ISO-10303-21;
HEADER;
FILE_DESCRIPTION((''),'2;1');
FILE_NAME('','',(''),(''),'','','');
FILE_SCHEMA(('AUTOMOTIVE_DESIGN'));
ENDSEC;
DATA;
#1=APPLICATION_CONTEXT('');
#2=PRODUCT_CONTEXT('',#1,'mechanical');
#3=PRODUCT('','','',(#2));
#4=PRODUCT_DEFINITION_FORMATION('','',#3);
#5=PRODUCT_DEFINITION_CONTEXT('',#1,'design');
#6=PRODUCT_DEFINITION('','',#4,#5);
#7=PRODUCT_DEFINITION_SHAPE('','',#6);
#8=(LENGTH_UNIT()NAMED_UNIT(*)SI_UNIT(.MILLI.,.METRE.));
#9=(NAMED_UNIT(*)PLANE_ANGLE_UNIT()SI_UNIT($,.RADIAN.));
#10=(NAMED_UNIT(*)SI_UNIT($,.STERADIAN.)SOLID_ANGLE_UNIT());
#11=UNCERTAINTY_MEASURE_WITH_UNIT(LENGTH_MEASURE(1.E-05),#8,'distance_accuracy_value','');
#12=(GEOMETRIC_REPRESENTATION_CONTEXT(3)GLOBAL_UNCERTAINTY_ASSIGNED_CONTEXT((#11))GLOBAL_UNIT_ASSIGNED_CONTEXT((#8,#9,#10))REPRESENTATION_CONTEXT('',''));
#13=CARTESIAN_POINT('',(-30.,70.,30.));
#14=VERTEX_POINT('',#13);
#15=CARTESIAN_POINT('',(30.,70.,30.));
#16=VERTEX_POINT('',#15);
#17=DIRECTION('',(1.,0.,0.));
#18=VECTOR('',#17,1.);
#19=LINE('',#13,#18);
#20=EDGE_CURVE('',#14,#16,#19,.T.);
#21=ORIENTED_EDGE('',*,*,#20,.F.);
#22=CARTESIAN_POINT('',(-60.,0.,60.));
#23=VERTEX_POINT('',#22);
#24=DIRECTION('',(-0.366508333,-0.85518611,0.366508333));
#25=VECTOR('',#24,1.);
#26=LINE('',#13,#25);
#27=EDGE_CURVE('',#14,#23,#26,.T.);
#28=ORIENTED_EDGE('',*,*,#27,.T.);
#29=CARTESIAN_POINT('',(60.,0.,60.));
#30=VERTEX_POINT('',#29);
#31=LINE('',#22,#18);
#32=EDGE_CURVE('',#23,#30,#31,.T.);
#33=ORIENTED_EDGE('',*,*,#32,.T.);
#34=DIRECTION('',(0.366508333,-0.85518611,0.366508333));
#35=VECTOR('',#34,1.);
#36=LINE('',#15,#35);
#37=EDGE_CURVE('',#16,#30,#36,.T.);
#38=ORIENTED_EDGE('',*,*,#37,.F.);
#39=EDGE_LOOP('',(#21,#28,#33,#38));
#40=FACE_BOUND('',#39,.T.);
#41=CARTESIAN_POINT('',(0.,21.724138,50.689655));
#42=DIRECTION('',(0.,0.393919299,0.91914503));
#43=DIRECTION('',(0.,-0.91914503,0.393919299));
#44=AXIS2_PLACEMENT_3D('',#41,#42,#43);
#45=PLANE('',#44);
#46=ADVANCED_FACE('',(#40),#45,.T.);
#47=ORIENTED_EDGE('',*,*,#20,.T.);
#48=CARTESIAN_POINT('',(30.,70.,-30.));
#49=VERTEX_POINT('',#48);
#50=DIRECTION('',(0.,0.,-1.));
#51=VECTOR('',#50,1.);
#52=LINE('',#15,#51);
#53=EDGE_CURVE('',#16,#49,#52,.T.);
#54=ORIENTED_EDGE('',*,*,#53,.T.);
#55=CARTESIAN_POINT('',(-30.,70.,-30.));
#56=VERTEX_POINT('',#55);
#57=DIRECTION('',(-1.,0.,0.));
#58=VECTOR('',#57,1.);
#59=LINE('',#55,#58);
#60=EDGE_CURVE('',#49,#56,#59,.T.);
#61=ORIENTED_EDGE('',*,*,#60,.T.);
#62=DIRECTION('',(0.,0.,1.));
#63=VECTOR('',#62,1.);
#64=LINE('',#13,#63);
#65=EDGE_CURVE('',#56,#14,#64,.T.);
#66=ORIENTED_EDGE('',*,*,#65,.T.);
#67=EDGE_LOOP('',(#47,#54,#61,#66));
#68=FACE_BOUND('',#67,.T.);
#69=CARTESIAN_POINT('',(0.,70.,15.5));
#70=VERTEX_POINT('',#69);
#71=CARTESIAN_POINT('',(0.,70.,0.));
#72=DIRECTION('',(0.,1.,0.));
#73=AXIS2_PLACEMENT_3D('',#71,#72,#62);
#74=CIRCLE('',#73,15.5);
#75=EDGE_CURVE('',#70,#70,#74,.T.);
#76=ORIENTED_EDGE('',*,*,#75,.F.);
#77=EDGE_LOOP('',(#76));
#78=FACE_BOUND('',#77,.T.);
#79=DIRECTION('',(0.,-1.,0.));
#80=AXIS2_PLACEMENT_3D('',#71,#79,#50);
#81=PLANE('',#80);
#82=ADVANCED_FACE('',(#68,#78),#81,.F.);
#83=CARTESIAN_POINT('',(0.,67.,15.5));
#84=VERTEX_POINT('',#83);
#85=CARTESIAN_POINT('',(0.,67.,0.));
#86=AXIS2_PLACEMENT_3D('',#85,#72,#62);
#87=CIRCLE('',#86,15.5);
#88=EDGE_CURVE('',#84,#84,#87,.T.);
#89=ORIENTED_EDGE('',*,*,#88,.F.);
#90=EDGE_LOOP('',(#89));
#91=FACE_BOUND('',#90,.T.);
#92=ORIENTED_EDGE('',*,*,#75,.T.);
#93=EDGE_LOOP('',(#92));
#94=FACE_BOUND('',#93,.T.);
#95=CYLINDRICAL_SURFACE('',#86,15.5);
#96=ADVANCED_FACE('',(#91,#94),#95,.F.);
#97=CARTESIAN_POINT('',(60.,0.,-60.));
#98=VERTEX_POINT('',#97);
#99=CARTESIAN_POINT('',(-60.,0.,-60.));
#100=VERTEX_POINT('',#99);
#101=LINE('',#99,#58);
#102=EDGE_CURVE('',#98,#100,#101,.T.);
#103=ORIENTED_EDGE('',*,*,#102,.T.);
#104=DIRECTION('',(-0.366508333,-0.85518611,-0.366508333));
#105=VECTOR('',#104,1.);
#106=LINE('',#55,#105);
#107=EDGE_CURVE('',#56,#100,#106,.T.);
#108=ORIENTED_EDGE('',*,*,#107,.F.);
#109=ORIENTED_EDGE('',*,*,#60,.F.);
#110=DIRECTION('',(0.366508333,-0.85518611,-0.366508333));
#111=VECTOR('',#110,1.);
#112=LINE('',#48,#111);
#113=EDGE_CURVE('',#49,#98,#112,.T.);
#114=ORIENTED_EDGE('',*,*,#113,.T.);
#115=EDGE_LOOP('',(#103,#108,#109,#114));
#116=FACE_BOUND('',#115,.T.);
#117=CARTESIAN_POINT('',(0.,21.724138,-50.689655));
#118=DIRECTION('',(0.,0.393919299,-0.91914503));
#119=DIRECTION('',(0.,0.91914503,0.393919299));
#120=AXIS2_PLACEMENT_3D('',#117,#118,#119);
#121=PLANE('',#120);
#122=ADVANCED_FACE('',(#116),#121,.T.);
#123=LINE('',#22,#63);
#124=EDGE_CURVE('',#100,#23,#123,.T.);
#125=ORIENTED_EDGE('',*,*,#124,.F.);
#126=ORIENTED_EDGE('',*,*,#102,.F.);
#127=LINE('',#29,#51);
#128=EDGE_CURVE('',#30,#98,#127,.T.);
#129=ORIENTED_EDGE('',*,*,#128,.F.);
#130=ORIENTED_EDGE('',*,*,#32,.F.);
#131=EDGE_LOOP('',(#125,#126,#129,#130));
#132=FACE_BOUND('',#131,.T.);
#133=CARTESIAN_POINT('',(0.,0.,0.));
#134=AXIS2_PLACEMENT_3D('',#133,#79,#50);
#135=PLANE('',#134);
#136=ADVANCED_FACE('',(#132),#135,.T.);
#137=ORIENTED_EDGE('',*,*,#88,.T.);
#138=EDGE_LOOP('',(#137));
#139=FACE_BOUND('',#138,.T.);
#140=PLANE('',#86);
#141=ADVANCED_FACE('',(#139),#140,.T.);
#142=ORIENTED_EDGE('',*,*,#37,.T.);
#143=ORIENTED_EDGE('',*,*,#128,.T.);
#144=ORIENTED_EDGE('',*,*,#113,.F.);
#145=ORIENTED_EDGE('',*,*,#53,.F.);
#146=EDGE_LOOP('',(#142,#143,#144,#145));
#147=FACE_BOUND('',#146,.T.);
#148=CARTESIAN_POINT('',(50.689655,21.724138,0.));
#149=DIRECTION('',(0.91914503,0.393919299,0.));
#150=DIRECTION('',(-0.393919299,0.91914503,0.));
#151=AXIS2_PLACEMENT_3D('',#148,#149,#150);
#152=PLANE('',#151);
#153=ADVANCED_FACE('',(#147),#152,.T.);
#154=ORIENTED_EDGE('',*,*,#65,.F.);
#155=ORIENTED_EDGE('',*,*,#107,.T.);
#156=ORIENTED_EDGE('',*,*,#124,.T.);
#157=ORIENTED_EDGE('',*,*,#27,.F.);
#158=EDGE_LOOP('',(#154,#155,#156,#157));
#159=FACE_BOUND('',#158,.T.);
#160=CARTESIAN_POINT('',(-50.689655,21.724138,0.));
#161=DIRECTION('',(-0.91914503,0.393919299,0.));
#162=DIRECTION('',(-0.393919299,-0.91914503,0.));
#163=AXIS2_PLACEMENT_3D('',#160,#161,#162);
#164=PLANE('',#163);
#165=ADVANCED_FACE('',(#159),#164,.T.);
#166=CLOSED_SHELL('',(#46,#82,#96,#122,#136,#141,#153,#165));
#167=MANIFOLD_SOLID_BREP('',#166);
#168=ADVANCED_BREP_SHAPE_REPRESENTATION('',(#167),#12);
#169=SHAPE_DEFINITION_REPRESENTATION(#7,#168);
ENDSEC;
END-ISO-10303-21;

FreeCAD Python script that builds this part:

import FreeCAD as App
import Part
import Sketcher
from FreeCAD import Vector


def add_polygon(sketch, points):
    """Adds a closed chain of lines whose ends are joined by coincident constraints."""
    first, n = sketch.GeometryCount, len(points)
    for a, b in zip(points, points[1:] + points[:1]):
        sketch.addGeometry(Part.LineSegment(App.Vector(*a, 0), App.Vector(*b, 0)), False)
    for i in range(n):
        sketch.addConstraint(Sketcher.Constraint("Coincident", first + i, 2, first + (i + 1) % n, 1))

doc = App.newDocument("Part")
body = doc.addObject("PartDesign::Body", "Body")

sketch1 = body.newObject("Sketcher::SketchObject", "Sketch")
sketch1.AttachmentSupport = (doc.getObject("XZ_Plane"), [""])
sketch1.MapMode = "FlatFace"
sketch1.AttachmentOffset = App.Placement(Vector(0, 0, -70), App.Rotation())
add_polygon(sketch1, [(-30, 30), (30, 30), (30, -30), (-30, -30)])
sketch1.addConstraint([
    Sketcher.Constraint("Horizontal", 0),
    Sketcher.Constraint("Vertical", 1),
    Sketcher.Constraint("Horizontal", 2),
    Sketcher.Constraint("Vertical", 3),
    Sketcher.Constraint("Symmetric", 0, 2, 2, 2, -1, 1),
    Sketcher.Constraint("Equal", 2, 1),
    Sketcher.Constraint("DistanceX", 0, 1, 0, 2, 60.0),
])

sketch2 = body.newObject("Sketcher::SketchObject", "Sketch001")
sketch2.AttachmentSupport = (doc.getObject("XZ_Plane"), [""])
sketch2.MapMode = "FlatFace"
add_polygon(sketch2, [(-60, 60), (60, 60), (60, -60), (-60, -60)])
sketch2.addConstraint([
    Sketcher.Constraint("Horizontal", 0),
    Sketcher.Constraint("Vertical", 1),
    Sketcher.Constraint("Horizontal", 2),
    Sketcher.Constraint("Vertical", 3),
    Sketcher.Constraint("Symmetric", 0, 2, 2, 2, -1, 1),
    Sketcher.Constraint("Equal", 2, 1),
    Sketcher.Constraint("DistanceX", 0, 1, 0, 2, 120.0),
])

additiveloft = body.newObject("PartDesign::AdditiveLoft", "AdditiveLoft")
additiveloft.Profile = sketch1
additiveloft.Sections = [sketch2]

sketch3 = body.newObject("Sketcher::SketchObject", "Sketch002")
sketch3.AttachmentSupport = (doc.getObject("XZ_Plane"), [""])
sketch3.MapMode = "FlatFace"
sketch3.AttachmentOffset = App.Placement(Vector(0, 0, -70), App.Rotation())
sketch3.addGeometry(Part.Circle(Vector(0, 0, 0), Vector(0, 0, 1), 16), False)
sketch3.addConstraint([
    Sketcher.Constraint("Coincident", 0, 3, -1, 1),
    Sketcher.Constraint("Diameter", 0, 31.0),
])
pocket1 = body.newObject("PartDesign::Pocket", "Pocket")
pocket1.Profile = sketch3
pocket1.Length = 3
pocket1.Reversed = True

doc.recompute()
